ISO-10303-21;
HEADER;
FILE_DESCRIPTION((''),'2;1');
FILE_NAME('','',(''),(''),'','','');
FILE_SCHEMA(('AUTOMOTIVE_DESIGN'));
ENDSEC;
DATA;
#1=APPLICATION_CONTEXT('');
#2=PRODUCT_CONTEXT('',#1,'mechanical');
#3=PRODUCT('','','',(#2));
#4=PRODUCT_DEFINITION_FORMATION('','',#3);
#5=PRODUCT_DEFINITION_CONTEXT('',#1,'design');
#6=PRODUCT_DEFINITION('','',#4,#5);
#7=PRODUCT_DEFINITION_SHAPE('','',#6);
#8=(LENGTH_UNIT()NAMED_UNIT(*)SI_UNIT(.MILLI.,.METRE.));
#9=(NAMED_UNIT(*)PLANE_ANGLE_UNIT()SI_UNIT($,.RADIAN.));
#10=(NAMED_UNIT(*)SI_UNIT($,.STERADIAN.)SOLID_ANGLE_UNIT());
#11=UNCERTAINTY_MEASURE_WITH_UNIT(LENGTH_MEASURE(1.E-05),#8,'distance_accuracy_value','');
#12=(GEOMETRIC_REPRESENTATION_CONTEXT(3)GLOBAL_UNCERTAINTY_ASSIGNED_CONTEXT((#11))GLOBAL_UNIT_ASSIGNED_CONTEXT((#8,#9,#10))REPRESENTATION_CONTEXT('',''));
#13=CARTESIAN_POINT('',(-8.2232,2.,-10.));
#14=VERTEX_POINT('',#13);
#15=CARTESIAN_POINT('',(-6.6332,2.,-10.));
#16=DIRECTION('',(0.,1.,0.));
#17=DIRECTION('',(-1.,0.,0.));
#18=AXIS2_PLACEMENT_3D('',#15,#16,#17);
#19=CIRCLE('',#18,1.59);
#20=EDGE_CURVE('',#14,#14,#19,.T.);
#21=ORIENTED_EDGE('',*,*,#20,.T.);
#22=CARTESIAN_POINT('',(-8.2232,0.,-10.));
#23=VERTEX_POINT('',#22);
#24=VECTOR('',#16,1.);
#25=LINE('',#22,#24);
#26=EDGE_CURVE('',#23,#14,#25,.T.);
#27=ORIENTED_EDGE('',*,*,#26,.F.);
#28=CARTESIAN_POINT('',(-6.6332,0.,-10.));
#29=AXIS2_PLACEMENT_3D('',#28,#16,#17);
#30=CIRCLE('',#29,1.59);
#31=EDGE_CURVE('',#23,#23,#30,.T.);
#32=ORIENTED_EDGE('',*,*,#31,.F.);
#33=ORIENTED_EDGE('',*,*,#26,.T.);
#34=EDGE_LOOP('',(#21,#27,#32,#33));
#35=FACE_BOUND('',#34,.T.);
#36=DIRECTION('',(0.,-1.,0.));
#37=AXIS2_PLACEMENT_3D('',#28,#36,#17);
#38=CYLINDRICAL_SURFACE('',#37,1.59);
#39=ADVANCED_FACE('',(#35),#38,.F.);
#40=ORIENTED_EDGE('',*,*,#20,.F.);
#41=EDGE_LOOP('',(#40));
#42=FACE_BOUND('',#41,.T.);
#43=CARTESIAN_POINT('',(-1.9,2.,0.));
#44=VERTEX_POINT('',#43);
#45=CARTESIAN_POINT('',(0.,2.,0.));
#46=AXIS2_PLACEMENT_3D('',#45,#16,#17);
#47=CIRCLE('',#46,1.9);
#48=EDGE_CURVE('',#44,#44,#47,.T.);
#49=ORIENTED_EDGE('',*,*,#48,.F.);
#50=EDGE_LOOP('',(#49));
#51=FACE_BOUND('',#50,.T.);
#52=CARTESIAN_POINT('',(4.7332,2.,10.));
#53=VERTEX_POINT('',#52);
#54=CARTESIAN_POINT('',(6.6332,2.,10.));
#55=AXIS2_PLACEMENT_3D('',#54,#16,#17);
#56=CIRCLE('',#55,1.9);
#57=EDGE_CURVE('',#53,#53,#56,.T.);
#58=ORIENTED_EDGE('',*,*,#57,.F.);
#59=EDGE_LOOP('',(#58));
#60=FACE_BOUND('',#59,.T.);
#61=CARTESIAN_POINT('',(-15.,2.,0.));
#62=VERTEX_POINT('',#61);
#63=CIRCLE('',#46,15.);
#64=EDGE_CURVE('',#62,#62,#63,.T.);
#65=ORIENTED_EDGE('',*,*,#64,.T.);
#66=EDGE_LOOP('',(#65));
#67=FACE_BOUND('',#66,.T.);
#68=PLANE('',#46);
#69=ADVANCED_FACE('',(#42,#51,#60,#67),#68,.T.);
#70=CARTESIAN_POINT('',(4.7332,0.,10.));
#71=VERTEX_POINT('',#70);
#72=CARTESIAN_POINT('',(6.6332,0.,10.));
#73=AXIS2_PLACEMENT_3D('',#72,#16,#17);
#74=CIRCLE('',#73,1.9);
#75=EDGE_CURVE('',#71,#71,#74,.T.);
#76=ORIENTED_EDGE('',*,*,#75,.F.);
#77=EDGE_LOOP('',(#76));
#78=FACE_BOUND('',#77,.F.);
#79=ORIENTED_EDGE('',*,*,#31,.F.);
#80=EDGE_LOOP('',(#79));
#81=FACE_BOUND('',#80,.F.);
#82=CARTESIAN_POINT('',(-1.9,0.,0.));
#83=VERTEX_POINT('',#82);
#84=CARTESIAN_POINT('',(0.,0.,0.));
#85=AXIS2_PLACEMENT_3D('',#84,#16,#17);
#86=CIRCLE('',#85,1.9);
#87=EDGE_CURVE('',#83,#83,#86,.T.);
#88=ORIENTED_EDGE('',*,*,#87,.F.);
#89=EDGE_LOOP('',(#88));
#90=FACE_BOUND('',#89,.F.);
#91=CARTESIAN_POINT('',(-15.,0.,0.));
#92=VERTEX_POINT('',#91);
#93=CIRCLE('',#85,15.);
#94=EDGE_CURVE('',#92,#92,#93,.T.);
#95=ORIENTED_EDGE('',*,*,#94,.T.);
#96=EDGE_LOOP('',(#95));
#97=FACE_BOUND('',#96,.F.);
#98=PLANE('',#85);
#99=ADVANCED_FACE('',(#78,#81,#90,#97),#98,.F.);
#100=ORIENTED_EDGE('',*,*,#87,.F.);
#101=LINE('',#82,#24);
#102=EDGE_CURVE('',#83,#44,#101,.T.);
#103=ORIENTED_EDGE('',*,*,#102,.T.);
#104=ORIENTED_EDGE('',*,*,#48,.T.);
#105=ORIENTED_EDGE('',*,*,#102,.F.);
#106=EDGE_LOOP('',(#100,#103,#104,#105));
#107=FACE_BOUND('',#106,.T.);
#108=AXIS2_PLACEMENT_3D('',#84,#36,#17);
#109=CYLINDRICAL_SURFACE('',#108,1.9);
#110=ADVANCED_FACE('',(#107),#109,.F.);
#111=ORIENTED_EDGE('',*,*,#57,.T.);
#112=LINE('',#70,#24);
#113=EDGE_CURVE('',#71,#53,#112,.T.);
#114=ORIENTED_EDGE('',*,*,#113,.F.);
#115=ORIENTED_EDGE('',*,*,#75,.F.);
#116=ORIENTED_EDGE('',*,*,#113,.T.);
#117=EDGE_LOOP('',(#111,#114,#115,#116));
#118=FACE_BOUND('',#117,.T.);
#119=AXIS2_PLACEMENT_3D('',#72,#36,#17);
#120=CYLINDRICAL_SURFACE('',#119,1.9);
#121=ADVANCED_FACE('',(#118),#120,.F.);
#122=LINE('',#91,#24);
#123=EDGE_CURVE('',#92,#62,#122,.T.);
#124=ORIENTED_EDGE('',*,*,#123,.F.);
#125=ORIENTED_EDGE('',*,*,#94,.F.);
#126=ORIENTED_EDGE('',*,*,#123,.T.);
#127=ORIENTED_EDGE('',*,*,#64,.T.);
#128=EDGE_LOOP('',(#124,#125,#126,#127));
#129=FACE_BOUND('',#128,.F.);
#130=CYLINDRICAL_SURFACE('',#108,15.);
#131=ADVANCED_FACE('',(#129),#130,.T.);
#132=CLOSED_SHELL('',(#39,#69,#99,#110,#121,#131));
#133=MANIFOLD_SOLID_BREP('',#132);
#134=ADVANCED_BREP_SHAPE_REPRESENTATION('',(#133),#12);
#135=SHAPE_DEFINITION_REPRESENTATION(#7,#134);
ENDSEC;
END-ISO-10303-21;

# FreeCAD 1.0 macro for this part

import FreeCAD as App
import Part
import Sketcher
Q = App.Units.Quantity

doc = App.newDocument("Part")
params = doc.addObject("Spreadsheet::Sheet", "Params")
for row, (alias, value) in enumerate([
    ("sketch1_diameter", "30 mm"),
    ("sketch1_diameter2", "3.8 mm"),
    ("sketch1_diameter3", "3.18 mm"),
    ("pad1_length", "2 mm"),
], start=1):
    params.set(f"A{row}", alias)
    params.set(f"B{row}", "=" + value)
    params.setAlias(f"B{row}", alias)

body = doc.addObject("PartDesign::Body", "Body")

# Sketch on XZ plane
sketch1 = body.newObject("Sketcher::SketchObject", "Sketch")
sketch1.AttachmentSupport = (doc.getObject("XZ_Plane"), [""])
sketch1.MapMode = "FlatFace"
sketch1.addGeometry([
    Part.Circle(App.Vector(0, 0, 0), App.Vector(0, 0, 1), 15),
    Part.Circle(App.Vector(-6.6, -10, 0), App.Vector(0, 0, 1), 1.6),
    Part.Circle(App.Vector(6.6, 10, 0), App.Vector(0, 0, 1), 1.9),
    Part.Circle(App.Vector(0, 0, 0), App.Vector(0, 0, 1), 1.9),
], False)
sketch1.addConstraint([
    Sketcher.Constraint("Coincident", 0, 3, -1, 1),
    Sketcher.Constraint("Coincident", 3, 3, -1, 1),
    Sketcher.Constraint("Equal", 2, 3),
    Sketcher.Constraint("Symmetric", 1, 3, 2, 3, -1, 1),
    Sketcher.Constraint("Diameter", 0, Q("30 mm")),
    Sketcher.Constraint("Diameter", 2, Q("3.8 mm")),
    Sketcher.Constraint("Diameter", 1, Q("3.18 mm")),
    Sketcher.Constraint("DistanceY", 1, 3, -1, 1, Q("10 mm")),
    Sketcher.Constraint("DistanceX", 1, 3, -1, 1, Q("6.6332 mm")),
])
sketch1.setExpression("Constraints[4]", "Params.sketch1_diameter")
sketch1.setExpression("Constraints[5]", "Params.sketch1_diameter2")
sketch1.setExpression("Constraints[6]", "Params.sketch1_diameter3")
pad1 = body.newObject("PartDesign::Pad", "Pad")
pad1.Profile = sketch1
pad1.setExpression("Length", "Params.pad1_length")
pad1.Reversed = True

doc.recompute()
